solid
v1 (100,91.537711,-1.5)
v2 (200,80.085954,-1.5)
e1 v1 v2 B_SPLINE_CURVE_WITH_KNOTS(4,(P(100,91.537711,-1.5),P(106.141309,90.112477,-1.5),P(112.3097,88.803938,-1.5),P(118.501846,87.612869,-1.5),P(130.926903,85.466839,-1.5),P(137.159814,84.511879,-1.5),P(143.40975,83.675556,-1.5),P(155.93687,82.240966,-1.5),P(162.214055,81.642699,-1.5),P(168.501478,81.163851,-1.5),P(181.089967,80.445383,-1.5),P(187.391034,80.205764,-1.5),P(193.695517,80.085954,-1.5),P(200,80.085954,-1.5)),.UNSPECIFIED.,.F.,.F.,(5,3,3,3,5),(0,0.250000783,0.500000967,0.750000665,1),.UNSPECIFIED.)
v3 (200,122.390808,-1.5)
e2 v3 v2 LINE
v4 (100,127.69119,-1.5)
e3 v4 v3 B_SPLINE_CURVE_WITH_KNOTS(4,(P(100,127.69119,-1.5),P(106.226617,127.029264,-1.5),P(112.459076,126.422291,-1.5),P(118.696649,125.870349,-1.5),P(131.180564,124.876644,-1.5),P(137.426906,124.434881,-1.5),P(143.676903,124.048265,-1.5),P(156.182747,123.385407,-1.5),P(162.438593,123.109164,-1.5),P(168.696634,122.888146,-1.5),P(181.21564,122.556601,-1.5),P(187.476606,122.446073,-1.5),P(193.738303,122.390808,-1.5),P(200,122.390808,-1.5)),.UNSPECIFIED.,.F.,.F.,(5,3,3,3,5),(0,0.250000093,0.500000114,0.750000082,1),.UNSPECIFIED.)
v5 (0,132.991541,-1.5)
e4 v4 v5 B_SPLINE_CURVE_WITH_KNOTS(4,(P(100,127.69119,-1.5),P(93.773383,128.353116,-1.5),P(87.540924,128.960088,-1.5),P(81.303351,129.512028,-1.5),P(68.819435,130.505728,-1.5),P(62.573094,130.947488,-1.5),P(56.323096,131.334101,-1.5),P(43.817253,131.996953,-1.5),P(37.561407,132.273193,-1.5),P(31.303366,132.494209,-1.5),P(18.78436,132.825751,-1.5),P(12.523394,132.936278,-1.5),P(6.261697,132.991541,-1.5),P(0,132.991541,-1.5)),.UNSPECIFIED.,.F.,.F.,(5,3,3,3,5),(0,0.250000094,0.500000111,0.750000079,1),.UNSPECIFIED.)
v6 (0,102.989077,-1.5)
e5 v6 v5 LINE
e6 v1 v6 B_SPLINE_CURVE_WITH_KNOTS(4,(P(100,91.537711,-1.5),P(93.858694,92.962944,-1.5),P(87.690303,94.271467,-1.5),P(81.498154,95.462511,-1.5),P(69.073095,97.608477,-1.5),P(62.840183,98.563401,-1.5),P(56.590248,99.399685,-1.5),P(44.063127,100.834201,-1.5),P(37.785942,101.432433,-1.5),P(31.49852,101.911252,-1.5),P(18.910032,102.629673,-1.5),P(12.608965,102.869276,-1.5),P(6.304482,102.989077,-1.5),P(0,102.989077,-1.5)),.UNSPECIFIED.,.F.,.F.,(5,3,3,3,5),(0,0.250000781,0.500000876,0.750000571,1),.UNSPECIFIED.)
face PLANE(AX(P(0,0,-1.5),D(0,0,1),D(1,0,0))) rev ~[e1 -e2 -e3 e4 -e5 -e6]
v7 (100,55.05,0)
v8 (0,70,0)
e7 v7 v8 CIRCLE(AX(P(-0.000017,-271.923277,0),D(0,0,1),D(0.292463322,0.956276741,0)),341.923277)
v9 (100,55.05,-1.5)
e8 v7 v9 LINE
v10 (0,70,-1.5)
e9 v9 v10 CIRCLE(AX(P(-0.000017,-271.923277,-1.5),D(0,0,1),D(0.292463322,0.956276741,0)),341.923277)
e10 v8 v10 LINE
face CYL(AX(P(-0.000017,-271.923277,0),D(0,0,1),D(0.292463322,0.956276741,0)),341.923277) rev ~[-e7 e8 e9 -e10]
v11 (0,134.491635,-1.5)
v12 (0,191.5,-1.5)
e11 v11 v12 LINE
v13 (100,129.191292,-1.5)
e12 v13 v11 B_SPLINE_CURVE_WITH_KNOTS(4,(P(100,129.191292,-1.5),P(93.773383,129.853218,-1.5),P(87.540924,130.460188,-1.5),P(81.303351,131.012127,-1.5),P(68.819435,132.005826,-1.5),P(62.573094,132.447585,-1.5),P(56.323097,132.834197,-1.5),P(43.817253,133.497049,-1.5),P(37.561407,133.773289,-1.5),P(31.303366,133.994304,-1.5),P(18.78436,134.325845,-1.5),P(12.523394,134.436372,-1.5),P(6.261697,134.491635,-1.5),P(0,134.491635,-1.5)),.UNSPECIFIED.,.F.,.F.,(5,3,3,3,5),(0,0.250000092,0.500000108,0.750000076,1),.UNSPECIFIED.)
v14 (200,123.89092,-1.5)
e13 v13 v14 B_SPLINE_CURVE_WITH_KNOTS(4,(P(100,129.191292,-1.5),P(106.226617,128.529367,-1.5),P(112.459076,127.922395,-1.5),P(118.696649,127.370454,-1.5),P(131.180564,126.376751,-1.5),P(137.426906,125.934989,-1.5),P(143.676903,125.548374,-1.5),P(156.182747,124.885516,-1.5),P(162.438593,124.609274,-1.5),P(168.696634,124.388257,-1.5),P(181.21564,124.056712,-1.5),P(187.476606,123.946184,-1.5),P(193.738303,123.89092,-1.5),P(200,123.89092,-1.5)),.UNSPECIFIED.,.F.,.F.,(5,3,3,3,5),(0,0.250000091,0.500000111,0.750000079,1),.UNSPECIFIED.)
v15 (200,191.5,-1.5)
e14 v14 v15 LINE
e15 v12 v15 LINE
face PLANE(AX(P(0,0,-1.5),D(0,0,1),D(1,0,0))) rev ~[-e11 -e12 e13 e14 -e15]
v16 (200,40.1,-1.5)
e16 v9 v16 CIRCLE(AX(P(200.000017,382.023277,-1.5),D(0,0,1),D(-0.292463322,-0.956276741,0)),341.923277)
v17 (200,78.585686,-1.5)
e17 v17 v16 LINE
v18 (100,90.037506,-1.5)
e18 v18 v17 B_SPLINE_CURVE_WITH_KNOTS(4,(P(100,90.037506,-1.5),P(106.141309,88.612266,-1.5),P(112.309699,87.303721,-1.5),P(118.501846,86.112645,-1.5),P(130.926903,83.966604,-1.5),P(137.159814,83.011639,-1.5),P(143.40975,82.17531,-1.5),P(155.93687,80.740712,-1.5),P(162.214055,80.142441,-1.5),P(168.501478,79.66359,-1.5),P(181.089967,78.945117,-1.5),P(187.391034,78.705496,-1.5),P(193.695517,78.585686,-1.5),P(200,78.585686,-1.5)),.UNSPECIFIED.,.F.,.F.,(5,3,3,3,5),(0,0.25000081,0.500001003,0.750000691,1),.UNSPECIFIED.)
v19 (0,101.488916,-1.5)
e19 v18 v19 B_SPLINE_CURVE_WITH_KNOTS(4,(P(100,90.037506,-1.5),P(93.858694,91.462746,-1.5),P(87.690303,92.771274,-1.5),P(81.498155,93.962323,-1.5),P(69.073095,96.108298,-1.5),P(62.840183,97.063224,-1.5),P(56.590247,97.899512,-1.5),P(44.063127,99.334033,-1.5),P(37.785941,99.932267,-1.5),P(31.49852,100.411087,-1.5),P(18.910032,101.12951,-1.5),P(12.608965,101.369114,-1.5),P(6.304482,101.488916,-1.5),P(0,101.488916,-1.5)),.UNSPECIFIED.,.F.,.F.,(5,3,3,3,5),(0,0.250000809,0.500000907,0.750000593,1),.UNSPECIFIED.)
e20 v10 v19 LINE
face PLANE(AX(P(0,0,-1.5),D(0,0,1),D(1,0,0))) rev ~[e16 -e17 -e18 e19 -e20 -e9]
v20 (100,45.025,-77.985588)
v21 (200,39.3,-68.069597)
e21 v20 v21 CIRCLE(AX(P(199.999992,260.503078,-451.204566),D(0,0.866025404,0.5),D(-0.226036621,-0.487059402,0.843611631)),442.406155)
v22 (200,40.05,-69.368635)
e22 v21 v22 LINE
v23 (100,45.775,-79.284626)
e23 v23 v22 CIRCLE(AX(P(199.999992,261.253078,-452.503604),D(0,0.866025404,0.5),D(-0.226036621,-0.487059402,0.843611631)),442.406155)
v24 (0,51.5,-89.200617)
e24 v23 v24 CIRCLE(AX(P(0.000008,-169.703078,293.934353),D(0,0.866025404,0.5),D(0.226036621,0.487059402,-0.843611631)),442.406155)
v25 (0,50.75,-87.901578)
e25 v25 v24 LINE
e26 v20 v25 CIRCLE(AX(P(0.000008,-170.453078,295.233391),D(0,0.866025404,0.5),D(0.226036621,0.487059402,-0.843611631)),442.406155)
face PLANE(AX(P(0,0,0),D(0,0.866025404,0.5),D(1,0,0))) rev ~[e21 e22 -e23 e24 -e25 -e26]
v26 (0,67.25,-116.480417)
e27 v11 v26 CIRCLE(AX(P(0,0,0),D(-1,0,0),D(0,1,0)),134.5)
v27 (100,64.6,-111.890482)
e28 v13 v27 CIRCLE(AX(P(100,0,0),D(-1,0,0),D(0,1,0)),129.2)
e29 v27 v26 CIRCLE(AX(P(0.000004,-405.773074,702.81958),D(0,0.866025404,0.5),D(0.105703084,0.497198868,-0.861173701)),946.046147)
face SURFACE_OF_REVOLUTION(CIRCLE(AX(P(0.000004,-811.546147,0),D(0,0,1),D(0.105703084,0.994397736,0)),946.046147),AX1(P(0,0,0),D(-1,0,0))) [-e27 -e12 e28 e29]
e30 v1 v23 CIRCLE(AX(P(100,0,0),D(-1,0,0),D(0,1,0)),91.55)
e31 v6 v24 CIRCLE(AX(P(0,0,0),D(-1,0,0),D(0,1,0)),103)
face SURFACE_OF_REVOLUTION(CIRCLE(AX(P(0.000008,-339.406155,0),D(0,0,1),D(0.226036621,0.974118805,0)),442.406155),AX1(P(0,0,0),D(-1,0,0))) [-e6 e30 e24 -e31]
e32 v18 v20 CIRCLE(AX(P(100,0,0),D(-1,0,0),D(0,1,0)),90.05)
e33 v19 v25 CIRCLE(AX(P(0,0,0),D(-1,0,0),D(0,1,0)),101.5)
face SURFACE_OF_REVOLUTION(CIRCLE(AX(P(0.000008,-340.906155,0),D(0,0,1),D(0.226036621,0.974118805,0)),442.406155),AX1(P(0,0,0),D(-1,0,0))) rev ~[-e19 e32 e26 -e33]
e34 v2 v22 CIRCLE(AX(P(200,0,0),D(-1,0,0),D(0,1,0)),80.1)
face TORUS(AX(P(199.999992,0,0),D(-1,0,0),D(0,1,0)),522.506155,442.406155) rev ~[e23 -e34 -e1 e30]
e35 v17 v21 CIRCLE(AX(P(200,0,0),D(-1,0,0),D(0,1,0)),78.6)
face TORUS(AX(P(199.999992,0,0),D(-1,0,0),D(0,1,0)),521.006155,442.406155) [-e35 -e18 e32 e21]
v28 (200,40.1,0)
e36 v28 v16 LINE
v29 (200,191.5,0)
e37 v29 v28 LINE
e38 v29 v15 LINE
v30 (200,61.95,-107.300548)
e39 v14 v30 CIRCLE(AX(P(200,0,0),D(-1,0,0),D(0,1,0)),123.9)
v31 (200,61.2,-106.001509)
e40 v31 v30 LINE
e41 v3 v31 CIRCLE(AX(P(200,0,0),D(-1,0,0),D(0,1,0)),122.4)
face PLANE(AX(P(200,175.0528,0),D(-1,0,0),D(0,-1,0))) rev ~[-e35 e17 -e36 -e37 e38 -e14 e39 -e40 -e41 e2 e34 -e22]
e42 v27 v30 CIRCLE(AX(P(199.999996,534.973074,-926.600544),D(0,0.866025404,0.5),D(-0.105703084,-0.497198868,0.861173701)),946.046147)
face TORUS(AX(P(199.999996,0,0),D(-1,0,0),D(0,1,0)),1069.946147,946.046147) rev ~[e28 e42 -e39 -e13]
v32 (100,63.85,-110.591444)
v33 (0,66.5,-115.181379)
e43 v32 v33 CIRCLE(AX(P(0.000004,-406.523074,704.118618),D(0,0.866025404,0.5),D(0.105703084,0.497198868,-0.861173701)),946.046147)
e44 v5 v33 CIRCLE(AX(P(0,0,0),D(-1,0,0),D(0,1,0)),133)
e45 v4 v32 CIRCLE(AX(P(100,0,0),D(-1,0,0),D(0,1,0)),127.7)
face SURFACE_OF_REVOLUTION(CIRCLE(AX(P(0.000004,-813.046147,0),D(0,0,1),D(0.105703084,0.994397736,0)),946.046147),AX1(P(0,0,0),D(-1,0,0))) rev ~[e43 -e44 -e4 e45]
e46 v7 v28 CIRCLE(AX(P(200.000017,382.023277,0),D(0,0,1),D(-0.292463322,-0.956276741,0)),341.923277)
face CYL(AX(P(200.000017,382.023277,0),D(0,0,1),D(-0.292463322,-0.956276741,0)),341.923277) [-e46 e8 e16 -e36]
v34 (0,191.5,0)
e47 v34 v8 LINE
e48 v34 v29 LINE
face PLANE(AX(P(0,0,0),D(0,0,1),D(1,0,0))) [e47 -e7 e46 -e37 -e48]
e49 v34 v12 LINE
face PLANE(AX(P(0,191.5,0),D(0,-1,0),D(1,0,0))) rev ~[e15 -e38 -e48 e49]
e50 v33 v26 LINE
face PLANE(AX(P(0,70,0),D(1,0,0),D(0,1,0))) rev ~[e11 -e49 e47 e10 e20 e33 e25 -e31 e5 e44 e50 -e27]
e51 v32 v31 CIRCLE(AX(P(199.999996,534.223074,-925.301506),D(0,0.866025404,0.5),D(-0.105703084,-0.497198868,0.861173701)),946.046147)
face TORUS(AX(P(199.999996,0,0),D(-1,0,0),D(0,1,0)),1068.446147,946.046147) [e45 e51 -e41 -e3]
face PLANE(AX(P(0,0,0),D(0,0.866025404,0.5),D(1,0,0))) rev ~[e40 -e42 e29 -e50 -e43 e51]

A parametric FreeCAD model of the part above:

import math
import FreeCAD as App
import Part
import Sketcher
from FreeCAD import Vector
Q = App.Units.Quantity

doc = App.newDocument("Part")
body = doc.addObject("PartDesign::Body", "Body")
body.AllowCompound = True

# Sketch on XY plane
sketch1 = body.newObject("Sketcher::SketchObject", "Sketch")
sketch1.AttachmentSupport = (doc.getObject("XY_Plane"), [""])
sketch1.MapMode = "FlatFace"
sketch1.addGeometry([
    Part.LineSegment(Vector(0, 103, 0), Vector(0, 101.5, 0)),  # 0
    Part.ArcOfCircle(Part.Circle(Vector(0, -340.9062, 0), Vector(0, 0, 1), 442.406201), math.radians(76.936158), math.radians(90)),  # 1
    Part.ArcOfCircle(Part.Circle(Vector(200, 521.0062, 0), Vector(0, 0, 1), 442.406201), math.radians(-103.063842), math.radians(-90)),  # 2
    Part.LineSegment(Vector(200, 78.6, 0), Vector(200, 80.1, 0)),  # 3
    Part.ArcOfCircle(Part.Circle(Vector(200, 522.5062, 0), Vector(0, 0, 1), 442.406201), math.radians(-103.063842), math.radians(-90)),  # 4
    Part.ArcOfCircle(Part.Circle(Vector(0, -339.4062, 0), Vector(0, 0, 1), 442.406201), math.radians(76.936158), math.radians(90)),  # 5
    Part.LineSegment(Vector(0, 134.5, 0), Vector(0, 133, 0)),  # 6
    Part.ArcOfCircle(Part.Circle(Vector(0, -813.0462, 0), Vector(0, 0, 1), 946.0462), math.radians(83.932324), math.radians(90)),  # 7
    Part.ArcOfCircle(Part.Circle(Vector(200, 1068.4462, 0), Vector(0, 0, 1), 946.0462), math.radians(-96.067676), math.radians(-90)),  # 8
    Part.LineSegment(Vector(200, 122.4, 0), Vector(200, 123.9, 0)),  # 9
    Part.ArcOfCircle(Part.Circle(Vector(200, 1069.9462, 0), Vector(0, 0, 1), 946.0462), math.radians(-96.067676), math.radians(-90)),  # 10
    Part.ArcOfCircle(Part.Circle(Vector(0, -811.5462, 0), Vector(0, 0, 1), 946.0462), math.radians(83.932324), math.radians(90)),  # 11
], False)
sketch1.addConstraint([
    Sketcher.Constraint("Coincident", 0, 2, 1, 2),
    Sketcher.Constraint("Tangent", 1, 1, 2, 1),
    Sketcher.Constraint("Coincident", 2, 2, 3, 1),
    Sketcher.Constraint("Coincident", 3, 2, 4, 2),
    Sketcher.Constraint("Tangent", 4, 1, 5, 1),
    Sketcher.Constraint("Coincident", 5, 2, 0, 1),
    Sketcher.Constraint("Coincident", 6, 2, 7, 2),
    Sketcher.Constraint("Tangent", 7, 1, 8, 1),
    Sketcher.Constraint("Coincident", 8, 2, 9, 1),
    Sketcher.Constraint("Coincident", 9, 2, 10, 2),
    Sketcher.Constraint("Tangent", 10, 1, 11, 1),
    Sketcher.Constraint("Coincident", 11, 2, 6, 1),
    Sketcher.Constraint("Vertical", 0),
    Sketcher.Constraint("Vertical", 3),
    Sketcher.Constraint("Vertical", 6),
    Sketcher.Constraint("Vertical", 9),
    Sketcher.Constraint("Equal", 1, 2),
    Sketcher.Constraint("Equal", 2, 4),
    Sketcher.Constraint("Equal", 4, 5),
    Sketcher.Constraint("Equal", 7, 8),
    Sketcher.Constraint("Equal", 8, 10),
    Sketcher.Constraint("Equal", 10, 11),
    Sketcher.Constraint("PointOnObject", 1, 3, -2),
    Sketcher.Constraint("PointOnObject", 5, 3, -2),
    Sketcher.Constraint("PointOnObject", 7, 3, -2),
    Sketcher.Constraint("PointOnObject", 11, 3, -2),
    Sketcher.Constraint("PointOnObject", 0, 2, -2),
    Sketcher.Constraint("PointOnObject", 6, 2, -2),
    Sketcher.Constraint("Vertical", 2, 3, 4, 3),
    Sketcher.Constraint("Vertical", 4, 3, 8, 3),
    Sketcher.Constraint("Vertical", 8, 3, 10, 3),
    Sketcher.Constraint("Equal", 3, 6),
    Sketcher.Constraint("DistanceY", 0, 2, 0, 1, Q("1.5 mm")),
    Sketcher.Constraint("DistanceX", -1, 1, 2, 3, Q("200 mm")),
    Sketcher.Constraint("DistanceX", -1, 1, 3, 2, Q("200 mm")),
    Sketcher.Constraint("DistanceX", -1, 1, 9, 2, Q("200 mm")),
    Sketcher.Constraint("DistanceY", 5, 2, 6, 2, Q("30 mm")),
    Sketcher.Constraint("DistanceY", 3, 2, 8, 2, Q("42.3 mm")),
    Sketcher.Constraint("DistanceY", -1, 1, 5, 2, Q("103 mm")),
    Sketcher.Constraint("DistanceY", -1, 1, 2, 2, Q("78.6 mm")),
])
revolution = body.newObject("PartDesign::Revolution", "Revolution")
revolution.Profile = sketch1
revolution.ReferenceAxis = (sketch1, ["H_Axis"])
revolution.Angle = 60
revolution.Reversed = True

# Sketch on XY plane
sketch2 = body.newObject("Sketcher::SketchObject", "Sketch001")
sketch2.AttachmentSupport = (doc.getObject("XY_Plane"), [""])
sketch2.MapMode = "FlatFace"
sketch2.addGeometry([
    Part.LineSegment(Vector(200, 40.1, 0), Vector(200, 191.5, 0)),  # 0
    Part.LineSegment(Vector(200, 191.5, 0), Vector(0, 191.5, 0)),  # 1
    Part.LineSegment(Vector(0, 191.5, 0), Vector(0, 70, 0)),  # 2
    Part.ArcOfCircle(Part.Circle(Vector(0, -271.9232, 0), Vector(0, 0, 1), 341.923198), math.radians(72.99451), math.radians(90)),  # 3
    Part.ArcOfCircle(Part.Circle(Vector(200, 382.0232, 0), Vector(0, 0, 1), 341.923198), math.radians(-107.00549), math.radians(-90)),  # 4
], False)
sketch2.addConstraint([
    Sketcher.Constraint("Coincident", 0, 2, 1, 1),
    Sketcher.Constraint("Coincident", 1, 2, 2, 1),
    Sketcher.Constraint("Coincident", 2, 2, 3, 2),
    Sketcher.Constraint("Tangent", 3, 1, 4, 1),
    Sketcher.Constraint("Coincident", 4, 2, 0, 1),
    Sketcher.Constraint("Vertical", 0),
    Sketcher.Constraint("Horizontal", 1),
    Sketcher.Constraint("Vertical", 2),
    Sketcher.Constraint("Equal", 3, 4),
    Sketcher.Constraint("PointOnObject", 3, 3, -2),
    Sketcher.Constraint("PointOnObject", 1, 2, -2),
    Sketcher.Constraint("Vertical", 4, 3, 0, 2),
    Sketcher.Constraint("DistanceX", 1, 2, 1, 1, Q("200 mm")),
    Sketcher.Constraint("DistanceY", -1, 1, 0, 2, Q("191.5 mm")),
    Sketcher.Constraint("DistanceY", 0, 1, 0, 2, Q("151.4 mm")),
    Sketcher.Constraint("DistanceY", 2, 2, 2, 1, Q("121.5 mm")),
])
pad1 = body.newObject("PartDesign::Pad", "Pad")
pad1.Profile = sketch2
pad1.Length = 1.5
pad1.Reversed = True

doc.recompute()
